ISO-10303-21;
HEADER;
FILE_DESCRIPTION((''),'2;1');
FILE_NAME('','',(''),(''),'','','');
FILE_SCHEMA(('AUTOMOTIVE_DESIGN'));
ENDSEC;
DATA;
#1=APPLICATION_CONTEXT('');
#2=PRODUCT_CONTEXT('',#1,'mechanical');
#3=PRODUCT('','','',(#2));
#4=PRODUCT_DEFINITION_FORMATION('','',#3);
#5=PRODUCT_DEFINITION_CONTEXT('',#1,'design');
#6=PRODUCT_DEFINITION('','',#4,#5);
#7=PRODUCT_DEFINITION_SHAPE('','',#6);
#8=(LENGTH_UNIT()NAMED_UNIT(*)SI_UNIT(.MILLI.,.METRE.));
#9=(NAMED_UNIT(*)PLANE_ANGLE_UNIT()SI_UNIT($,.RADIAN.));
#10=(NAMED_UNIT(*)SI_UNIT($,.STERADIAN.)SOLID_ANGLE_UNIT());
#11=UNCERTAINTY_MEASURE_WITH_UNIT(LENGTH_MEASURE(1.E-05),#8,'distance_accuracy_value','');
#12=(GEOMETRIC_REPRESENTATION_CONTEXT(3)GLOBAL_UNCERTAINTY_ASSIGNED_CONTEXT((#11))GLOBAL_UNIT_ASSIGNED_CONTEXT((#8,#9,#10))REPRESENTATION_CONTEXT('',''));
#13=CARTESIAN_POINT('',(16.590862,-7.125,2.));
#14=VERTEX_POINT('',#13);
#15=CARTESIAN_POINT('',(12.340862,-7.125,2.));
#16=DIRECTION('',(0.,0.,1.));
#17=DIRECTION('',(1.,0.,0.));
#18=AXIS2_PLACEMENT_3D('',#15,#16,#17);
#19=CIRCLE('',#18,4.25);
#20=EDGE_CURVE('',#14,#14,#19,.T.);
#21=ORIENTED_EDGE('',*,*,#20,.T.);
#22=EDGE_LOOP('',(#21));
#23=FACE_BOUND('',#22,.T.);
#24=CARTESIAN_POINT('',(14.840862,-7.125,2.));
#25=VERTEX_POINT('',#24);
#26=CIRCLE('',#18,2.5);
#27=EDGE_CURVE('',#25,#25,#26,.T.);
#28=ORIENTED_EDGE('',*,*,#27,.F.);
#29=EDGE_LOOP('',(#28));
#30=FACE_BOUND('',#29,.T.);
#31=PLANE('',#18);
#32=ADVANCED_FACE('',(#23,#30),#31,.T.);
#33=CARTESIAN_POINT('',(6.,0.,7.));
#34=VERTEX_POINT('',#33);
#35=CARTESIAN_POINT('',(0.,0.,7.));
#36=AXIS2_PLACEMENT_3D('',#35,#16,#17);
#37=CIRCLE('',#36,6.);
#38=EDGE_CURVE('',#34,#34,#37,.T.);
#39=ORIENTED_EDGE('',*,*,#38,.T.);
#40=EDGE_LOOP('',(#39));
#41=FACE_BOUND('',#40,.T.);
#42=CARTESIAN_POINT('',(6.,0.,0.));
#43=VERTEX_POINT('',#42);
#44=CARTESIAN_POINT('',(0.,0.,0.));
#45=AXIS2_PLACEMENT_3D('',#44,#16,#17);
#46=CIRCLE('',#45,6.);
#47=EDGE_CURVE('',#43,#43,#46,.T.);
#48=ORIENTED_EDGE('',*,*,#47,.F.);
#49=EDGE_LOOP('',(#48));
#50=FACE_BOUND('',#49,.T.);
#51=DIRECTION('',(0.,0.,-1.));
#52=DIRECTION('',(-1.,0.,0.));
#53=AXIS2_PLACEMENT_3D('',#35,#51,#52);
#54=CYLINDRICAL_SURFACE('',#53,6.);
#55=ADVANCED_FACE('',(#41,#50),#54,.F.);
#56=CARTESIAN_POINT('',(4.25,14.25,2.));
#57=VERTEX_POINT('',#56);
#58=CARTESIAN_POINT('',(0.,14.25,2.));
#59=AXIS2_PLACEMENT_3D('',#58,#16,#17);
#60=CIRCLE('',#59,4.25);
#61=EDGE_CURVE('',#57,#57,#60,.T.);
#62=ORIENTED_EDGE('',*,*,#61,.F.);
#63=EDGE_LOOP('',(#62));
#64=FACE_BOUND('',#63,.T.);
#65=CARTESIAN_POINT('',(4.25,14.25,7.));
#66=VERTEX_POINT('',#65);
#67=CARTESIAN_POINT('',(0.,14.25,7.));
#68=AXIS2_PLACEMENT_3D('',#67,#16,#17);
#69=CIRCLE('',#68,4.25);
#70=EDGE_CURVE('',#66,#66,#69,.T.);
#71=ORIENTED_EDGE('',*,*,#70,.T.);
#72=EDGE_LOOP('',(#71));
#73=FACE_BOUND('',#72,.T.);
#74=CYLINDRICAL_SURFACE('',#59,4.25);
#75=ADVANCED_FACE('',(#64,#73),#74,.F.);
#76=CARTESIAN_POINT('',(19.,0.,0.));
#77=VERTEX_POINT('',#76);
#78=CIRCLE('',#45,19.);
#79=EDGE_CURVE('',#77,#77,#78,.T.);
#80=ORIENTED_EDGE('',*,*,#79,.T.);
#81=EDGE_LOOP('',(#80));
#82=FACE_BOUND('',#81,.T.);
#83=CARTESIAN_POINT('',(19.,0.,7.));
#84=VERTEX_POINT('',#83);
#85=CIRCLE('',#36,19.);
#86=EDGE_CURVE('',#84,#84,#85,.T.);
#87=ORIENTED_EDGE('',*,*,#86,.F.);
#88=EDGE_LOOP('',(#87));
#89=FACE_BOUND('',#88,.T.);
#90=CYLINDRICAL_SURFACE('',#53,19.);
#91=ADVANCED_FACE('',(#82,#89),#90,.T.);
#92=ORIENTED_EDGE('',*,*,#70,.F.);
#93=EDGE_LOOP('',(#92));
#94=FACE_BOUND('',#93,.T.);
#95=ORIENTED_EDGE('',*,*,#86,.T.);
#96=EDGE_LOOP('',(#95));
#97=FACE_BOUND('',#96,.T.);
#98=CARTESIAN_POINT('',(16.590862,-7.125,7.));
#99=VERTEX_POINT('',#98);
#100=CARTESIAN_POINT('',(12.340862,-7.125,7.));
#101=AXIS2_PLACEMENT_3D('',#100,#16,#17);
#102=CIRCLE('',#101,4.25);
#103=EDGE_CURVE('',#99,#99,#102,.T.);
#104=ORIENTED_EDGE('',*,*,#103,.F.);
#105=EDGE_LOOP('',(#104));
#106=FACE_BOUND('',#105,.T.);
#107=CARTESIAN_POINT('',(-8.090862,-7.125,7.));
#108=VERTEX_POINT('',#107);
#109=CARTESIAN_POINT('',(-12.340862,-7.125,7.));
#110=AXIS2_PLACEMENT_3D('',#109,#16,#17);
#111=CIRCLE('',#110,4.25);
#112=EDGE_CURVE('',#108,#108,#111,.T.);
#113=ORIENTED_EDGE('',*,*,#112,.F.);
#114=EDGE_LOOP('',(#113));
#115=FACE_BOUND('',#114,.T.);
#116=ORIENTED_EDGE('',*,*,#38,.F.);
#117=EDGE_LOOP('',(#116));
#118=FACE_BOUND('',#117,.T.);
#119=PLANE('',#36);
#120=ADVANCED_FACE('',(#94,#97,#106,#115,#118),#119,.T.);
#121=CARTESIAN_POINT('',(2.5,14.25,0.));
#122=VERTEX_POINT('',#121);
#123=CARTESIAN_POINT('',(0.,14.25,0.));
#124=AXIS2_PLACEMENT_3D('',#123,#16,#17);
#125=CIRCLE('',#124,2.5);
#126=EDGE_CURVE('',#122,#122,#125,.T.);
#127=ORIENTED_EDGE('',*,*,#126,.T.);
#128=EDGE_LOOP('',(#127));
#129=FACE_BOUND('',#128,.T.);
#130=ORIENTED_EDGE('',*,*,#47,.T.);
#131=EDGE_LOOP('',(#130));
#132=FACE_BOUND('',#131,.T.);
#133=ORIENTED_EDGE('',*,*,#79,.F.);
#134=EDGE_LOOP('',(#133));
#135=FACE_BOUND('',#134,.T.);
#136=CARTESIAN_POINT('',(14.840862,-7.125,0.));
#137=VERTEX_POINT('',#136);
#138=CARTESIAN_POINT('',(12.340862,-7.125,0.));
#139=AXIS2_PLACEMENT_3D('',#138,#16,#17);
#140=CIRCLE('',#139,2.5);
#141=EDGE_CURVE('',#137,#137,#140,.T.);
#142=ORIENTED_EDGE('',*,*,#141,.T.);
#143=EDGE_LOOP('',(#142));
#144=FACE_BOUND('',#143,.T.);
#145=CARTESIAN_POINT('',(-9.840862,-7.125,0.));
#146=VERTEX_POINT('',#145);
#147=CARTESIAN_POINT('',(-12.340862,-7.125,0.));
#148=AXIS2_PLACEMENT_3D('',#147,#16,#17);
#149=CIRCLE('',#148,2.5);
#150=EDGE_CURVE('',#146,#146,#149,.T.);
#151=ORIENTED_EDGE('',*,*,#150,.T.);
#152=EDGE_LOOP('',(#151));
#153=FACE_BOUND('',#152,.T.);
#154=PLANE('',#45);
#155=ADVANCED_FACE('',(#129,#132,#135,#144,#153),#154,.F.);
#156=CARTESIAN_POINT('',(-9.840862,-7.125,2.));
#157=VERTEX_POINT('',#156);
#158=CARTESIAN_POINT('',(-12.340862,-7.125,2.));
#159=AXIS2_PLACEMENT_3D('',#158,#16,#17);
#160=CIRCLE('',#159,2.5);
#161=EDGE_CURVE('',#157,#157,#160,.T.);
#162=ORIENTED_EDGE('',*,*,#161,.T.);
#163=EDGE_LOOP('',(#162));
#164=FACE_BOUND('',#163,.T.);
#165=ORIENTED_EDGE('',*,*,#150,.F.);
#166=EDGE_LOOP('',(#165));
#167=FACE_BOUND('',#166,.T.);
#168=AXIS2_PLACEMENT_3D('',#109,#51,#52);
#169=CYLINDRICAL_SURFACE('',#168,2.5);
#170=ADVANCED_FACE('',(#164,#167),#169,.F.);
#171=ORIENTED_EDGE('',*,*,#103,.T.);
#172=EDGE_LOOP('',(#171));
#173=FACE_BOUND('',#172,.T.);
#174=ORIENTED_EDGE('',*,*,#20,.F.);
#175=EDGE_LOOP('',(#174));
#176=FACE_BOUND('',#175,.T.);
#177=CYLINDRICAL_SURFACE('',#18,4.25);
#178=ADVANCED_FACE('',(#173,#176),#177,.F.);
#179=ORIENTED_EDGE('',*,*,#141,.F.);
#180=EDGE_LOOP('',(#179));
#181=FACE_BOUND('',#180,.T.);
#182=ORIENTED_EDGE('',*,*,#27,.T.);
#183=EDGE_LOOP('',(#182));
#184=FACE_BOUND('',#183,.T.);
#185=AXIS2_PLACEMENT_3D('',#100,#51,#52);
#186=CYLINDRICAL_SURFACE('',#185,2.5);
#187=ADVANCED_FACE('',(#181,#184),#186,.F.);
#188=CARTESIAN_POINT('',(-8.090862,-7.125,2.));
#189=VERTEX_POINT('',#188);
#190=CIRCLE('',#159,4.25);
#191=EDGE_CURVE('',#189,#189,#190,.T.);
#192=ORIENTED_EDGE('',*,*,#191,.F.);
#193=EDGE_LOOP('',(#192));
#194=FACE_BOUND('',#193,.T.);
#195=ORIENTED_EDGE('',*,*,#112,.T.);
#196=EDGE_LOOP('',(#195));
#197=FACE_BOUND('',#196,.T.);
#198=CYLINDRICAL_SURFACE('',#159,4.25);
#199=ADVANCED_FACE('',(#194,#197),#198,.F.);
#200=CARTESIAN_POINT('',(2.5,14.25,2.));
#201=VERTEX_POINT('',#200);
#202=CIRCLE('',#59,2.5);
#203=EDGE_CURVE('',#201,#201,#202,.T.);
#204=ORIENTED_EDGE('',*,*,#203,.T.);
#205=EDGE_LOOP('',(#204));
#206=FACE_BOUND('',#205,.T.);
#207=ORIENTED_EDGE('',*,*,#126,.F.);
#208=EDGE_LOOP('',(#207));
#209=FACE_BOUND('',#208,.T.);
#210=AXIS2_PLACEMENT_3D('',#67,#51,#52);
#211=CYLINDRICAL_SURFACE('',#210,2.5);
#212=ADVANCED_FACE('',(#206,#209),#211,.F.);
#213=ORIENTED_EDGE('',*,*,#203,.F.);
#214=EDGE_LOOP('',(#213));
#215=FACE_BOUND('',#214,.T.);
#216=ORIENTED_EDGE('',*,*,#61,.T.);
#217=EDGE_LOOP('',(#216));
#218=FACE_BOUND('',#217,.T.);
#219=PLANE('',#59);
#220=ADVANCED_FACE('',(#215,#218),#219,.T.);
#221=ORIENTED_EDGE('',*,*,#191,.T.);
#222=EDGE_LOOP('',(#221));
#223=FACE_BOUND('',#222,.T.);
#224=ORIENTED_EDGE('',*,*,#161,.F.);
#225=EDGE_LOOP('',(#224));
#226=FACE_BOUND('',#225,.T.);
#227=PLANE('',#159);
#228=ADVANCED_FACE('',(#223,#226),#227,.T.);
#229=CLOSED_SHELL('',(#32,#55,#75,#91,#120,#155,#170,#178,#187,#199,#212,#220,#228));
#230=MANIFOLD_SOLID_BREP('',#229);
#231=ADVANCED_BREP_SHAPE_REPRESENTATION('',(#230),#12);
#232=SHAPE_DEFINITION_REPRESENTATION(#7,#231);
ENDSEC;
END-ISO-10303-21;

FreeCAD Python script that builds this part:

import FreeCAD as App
import Part
import Sketcher
from FreeCAD import Vector
Q = App.Units.Quantity

doc = App.newDocument("Part")
body = doc.addObject("PartDesign::Body", "Body")

# Sketch on XY plane
sketch1 = doc.addObject("Sketcher::SketchObject", "Sketch")
body.addObject(sketch1)
sketch1.AttachmentSupport = (doc.XY_Plane, [""])
sketch1.MapMode = "FlatFace"
sketch1.addGeometry(Part.Circle(Vector(0, 0, 0), Vector(0, 0, 1), 19), False)
sketch1.addGeometry(Part.Circle(Vector(-12.3, -7.1, 0), Vector(0, 0, 1), 2.5), False)
sketch1.addGeometry(Part.Circle(Vector(0, 0, 0), Vector(0, 0, 1), 6), False)
sketch1.addGeometry(Part.Circle(Vector(12.3, -7.1, 0), Vector(0, 0, 1), 2.5), False)
sketch1.addGeometry(Part.Circle(Vector(0, 14.2, 0), Vector(0, 0, 1), 2.5), False)
sketch1.addConstraint(Sketcher.Constraint("Coincident", 0, 3, -1, 1))
sketch1.addConstraint(Sketcher.Constraint("Coincident", 2, 3, -1, 1))
sketch1.addConstraint(Sketcher.Constraint("Equal", 1, 3))
sketch1.addConstraint(Sketcher.Constraint("Equal", 3, 4))
sketch1.addConstraint(Sketcher.Constraint("Symmetric", 1, 3, 3, 3, -2))
sketch1.addConstraint(Sketcher.Constraint("PointOnObject", 4, 3, -2))
sketch1.addConstraint(Sketcher.Constraint("Diameter", 0, Q("38 mm")))
sketch1.addConstraint(Sketcher.Constraint("Diameter", 1, Q("5 mm")))
sketch1.addConstraint(Sketcher.Constraint("Diameter", 2, Q("12 mm")))
sketch1.addConstraint(Sketcher.Constraint("DistanceY", -1, 1, 4, 3, Q("14.25 mm")))
sketch1.addConstraint(Sketcher.Constraint("DistanceY", 1, 3, -1, 1, Q("7.125 mm")))
sketch1.addConstraint(Sketcher.Constraint("DistanceX", 1, 3, -1, 1, Q("12.340862 mm")))
pad1 = doc.addObject("PartDesign::Pad", "Pad")
body.addObject(pad1)
pad1.Profile = sketch1
pad1.Length = 7

# Sketch on XY plane
sketch2 = doc.addObject("Sketcher::SketchObject", "Sketch001")
body.addObject(sketch2)
sketch2.AttachmentSupport = (doc.XY_Plane, [""])
sketch2.MapMode = "FlatFace"
sketch2.AttachmentOffset = App.Placement(Vector(0, 0, 7), App.Rotation())
sketch2.addGeometry(Part.Circle(Vector(0, 14.2, 0), Vector(0, 0, 1), 4.2), False)
sketch2.addGeometry(Part.Circle(Vector(-12.3, -7.1, 0), Vector(0, 0, 1), 4.2), False)
sketch2.addGeometry(Part.Circle(Vector(12.3, -7.1, 0), Vector(0, 0, 1), 4.2), False)
sketch2.addConstraint(Sketcher.Constraint("Equal", 0, 1))
sketch2.addConstraint(Sketcher.Constraint("Equal", 1, 2))
sketch2.addConstraint(Sketcher.Constraint("Symmetric", 1, 3, 2, 3, -2))
sketch2.addConstraint(Sketcher.Constraint("PointOnObject", 0, 3, -2))
sketch2.addConstraint(Sketcher.Constraint("Diameter", 0, Q("8.5 mm")))
sketch2.addConstraint(Sketcher.Constraint("DistanceY", -1, 1, 0, 3, Q("14.25 mm")))
sketch2.addConstraint(Sketcher.Constraint("DistanceY", 1, 3, -1, 1, Q("7.125 mm")))
sketch2.addConstraint(Sketcher.Constraint("DistanceX", 1, 3, -1, 1, Q("12.340862 mm")))
pocket1 = doc.addObject("PartDesign::Pocket", "Pocket")
body.addObject(pocket1)
pocket1.Profile = sketch2
pocket1.Length = 5

doc.recompute()
